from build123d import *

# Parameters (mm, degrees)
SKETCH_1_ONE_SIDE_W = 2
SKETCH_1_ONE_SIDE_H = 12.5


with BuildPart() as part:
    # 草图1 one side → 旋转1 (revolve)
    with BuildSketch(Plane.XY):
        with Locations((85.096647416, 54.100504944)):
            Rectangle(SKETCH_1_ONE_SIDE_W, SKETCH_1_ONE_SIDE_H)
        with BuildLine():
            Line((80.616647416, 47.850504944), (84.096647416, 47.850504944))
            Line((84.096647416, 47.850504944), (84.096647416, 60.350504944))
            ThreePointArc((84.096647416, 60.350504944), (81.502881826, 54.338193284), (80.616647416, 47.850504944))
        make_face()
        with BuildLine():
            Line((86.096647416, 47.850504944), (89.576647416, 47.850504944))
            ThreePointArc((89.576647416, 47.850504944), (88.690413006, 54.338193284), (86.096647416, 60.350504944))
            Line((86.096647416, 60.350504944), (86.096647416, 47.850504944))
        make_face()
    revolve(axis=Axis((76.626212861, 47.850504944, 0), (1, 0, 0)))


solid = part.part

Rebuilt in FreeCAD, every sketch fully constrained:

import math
import FreeCAD as App
import Part
import Sketcher
Q = App.Units.Quantity

doc = App.newDocument("Part")
params = doc.addObject("Spreadsheet::Sheet", "Params")
for row, (alias, value) in enumerate([
    ("sketch1_width", "2 mm"),
    ("sketch1_width2", "8.96 mm"),
    ("revolution_angle", "360 deg"),
], start=1):
    params.set(f"A{row}", alias)
    params.set(f"B{row}", "=" + value)
    params.setAlias(f"B{row}", alias)

body = doc.addObject("PartDesign::Body", "Body")

sketch1 = body.newObject("Sketcher::SketchObject", "Sketch")
sketch1.AttachmentSupport = (doc.getObject("XY_Plane"), [""])
sketch1.MapMode = "FlatFace"
sketch1.addGeometry([
    Part.LineSegment(App.Vector(86.096647, 60.350505, 0), App.Vector(84.096647, 60.350505, 0)),
    Part.ArcOfCircle(Part.Circle(App.Vector(104.80636, 47.850505, 0), App.Vector(0, 0, 1), 24.189713), math.radians(148.885595), math.radians(180)),
    Part.LineSegment(App.Vector(80.616647, 47.850505, 0), App.Vector(89.576647, 47.850505, 0)),
    Part.ArcOfCircle(Part.Circle(App.Vector(65.386935, 47.850505, 0), App.Vector(0, 0, 1), 24.189713), math.radians(0), math.radians(31.114405)),
], False)
sketch1.addGeometry(Part.LineSegment(App.Vector(65.386935, 47.850505, 0), App.Vector(104.80636, 47.850505, 0)), True)
sketch1.addConstraint([
    Sketcher.Constraint("Coincident", 0, 2, 1, 1),
    Sketcher.Constraint("Coincident", 1, 2, 2, 1),
    Sketcher.Constraint("Coincident", 2, 2, 3, 1),
    Sketcher.Constraint("Coincident", 3, 2, 0, 1),
    Sketcher.Constraint("Horizontal", 0),
    Sketcher.Constraint("Horizontal", 2),
    Sketcher.Constraint("Horizontal", 4),
    Sketcher.Constraint("Coincident", 4, 1, 3, 3),
    Sketcher.Constraint("Coincident", 4, 2, 1, 3),
    Sketcher.Constraint("Equal", 1, 3),
    Sketcher.Constraint("Horizontal", 3, 3, 1, 2),
    Sketcher.Constraint("DistanceX", 0, 2, 0, 1, Q("2 mm")),
    Sketcher.Constraint("DistanceX", 2, 1, 2, 2, Q("8.96 mm")),
    Sketcher.Constraint("DistanceY", 3, 3, 0, 2, Q("12.5 mm")),
    Sketcher.Constraint("DistanceX", -1, 1, 1, 3, Q("104.80636 mm")),
    Sketcher.Constraint("DistanceY", -1, 1, 1, 3, Q("47.850505 mm")),
])
sketch1.setExpression("Constraints[11]", "Params.sketch1_width")
sketch1.setExpression("Constraints[12]", "Params.sketch1_width2")
revolution = body.newObject("PartDesign::Revolution", "Revolution")
revolution.Profile = sketch1
revolution.ReferenceAxis = (sketch1, ["Axis0"])
revolution.setExpression("Angle", "Params.revolution_angle")

doc.recompute()
